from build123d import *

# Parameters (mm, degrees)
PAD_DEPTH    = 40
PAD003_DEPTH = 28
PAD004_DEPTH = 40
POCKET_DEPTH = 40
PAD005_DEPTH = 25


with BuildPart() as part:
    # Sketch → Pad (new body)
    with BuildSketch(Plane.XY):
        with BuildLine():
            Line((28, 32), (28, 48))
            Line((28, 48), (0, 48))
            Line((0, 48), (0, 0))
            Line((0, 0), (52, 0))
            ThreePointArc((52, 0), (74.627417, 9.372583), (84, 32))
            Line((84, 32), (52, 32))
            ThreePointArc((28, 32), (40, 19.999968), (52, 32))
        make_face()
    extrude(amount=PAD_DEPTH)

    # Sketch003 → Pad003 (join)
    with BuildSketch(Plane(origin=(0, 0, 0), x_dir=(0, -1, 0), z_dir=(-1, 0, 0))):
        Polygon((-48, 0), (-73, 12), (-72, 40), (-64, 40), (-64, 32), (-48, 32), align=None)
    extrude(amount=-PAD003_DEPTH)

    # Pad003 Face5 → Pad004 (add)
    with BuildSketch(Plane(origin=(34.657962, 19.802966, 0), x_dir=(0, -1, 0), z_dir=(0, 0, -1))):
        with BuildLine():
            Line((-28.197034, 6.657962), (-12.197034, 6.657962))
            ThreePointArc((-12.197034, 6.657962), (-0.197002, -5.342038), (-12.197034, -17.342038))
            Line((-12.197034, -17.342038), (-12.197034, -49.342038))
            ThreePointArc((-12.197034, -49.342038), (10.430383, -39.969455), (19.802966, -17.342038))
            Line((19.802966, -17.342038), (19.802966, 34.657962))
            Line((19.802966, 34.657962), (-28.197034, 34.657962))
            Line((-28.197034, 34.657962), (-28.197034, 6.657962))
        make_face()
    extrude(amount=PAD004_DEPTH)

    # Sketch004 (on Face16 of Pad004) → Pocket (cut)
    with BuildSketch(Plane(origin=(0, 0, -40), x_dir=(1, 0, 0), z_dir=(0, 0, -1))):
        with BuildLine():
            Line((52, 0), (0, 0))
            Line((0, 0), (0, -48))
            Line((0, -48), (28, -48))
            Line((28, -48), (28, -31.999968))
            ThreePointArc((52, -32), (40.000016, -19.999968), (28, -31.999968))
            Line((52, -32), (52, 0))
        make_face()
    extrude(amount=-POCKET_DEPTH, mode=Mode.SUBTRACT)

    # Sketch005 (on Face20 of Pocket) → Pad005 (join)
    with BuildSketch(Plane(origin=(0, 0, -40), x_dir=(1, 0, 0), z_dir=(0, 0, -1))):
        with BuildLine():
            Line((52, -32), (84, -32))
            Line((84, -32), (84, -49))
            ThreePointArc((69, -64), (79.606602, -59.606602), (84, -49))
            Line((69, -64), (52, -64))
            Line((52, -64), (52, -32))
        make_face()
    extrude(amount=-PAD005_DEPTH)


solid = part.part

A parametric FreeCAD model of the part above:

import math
import FreeCAD as App
import Part
import Sketcher

V = App.Vector
Q = App.Units.Quantity


def add_polygon(sketch, points):
    """Adds a closed chain of lines whose ends are joined by coincident constraints."""
    first, n = sketch.GeometryCount, len(points)
    for a, b in zip(points, points[1:] + points[:1]):
        sketch.addGeometry(Part.LineSegment(App.Vector(*a, 0), App.Vector(*b, 0)), False)
    for i in range(n):
        sketch.addConstraint(Sketcher.Constraint("Coincident", first + i, 2, first + (i + 1) % n, 1))

doc = App.newDocument("Part")
body = doc.addObject("PartDesign::Body", "Body")

# Sketch on XY plane
sketch1 = body.newObject("Sketcher::SketchObject", "Sketch")
sketch1.AttachmentSupport = (doc.getObject("XY_Plane"), [""])
sketch1.MapMode = "FlatFace"
sketch1.addGeometry(Part.LineSegment(V(28, 32, 0), V(28, 48, 0)), False)
sketch1.addGeometry(Part.LineSegment(V(28, 48, 0), V(0, 48, 0)), False)
sketch1.addGeometry(Part.LineSegment(V(0, 48, 0), V(0, 0, 0)), False)
sketch1.addGeometry(Part.LineSegment(V(0, 0, 0), V(52, 0, 0)), False)
sketch1.addGeometry(Part.ArcOfCircle(Part.Circle(V(52, 32, 0), V(0, 0, 1), 32), math.radians(-90), math.radians(0)), False)
sketch1.addGeometry(Part.LineSegment(V(84, 32, 0), V(52, 32, 0)), False)
sketch1.addGeometry(Part.ArcOfCircle(Part.Circle(V(40, 31.999968, 0), V(0, 0, 1), 12), math.radians(179.999847), math.radians(360.000153)), False)
sketch1.addConstraint(Sketcher.Constraint("Coincident", 0, 2, 1, 1))
sketch1.addConstraint(Sketcher.Constraint("Coincident", 1, 2, 2, 1))
sketch1.addConstraint(Sketcher.Constraint("Coincident", 2, 2, 3, 1))
sketch1.addConstraint(Sketcher.Constraint("Tangent", 3, 2, 4, 1))
sketch1.addConstraint(Sketcher.Constraint("Coincident", 4, 2, 5, 1))
sketch1.addConstraint(Sketcher.Constraint("Coincident", 5, 2, 6, 2))
sketch1.addConstraint(Sketcher.Constraint("Coincident", 6, 1, 0, 1))
sketch1.addConstraint(Sketcher.Constraint("Vertical", 0))
sketch1.addConstraint(Sketcher.Constraint("Horizontal", 1))
sketch1.addConstraint(Sketcher.Constraint("Vertical", 2))
sketch1.addConstraint(Sketcher.Constraint("Horizontal", 3))
sketch1.addConstraint(Sketcher.Constraint("Horizontal", 5))
sketch1.addConstraint(Sketcher.Constraint("Coincident", 2, 2, -1, 1))
sketch1.addConstraint(Sketcher.Constraint("Coincident", 5, 2, 4, 3))
sketch1.addConstraint(Sketcher.Constraint("Horizontal", 5, 2, 6, 1))
sketch1.addConstraint(Sketcher.Constraint("Radius", 4, Q("32 mm")))
sketch1.addConstraint(Sketcher.Constraint("Radius", 6, Q("12 mm")))
sketch1.addConstraint(Sketcher.Constraint("DistanceX", 1, 2, 1, 1, Q("28 mm")))
sketch1.addConstraint(Sketcher.Constraint("DistanceY", 0, 1, 0, 2, Q("16 mm")))
sketch1.addConstraint(Sketcher.Constraint("DistanceY", -1, 1, 6, 3, Q("31.999968 mm")))
pad1 = body.newObject("PartDesign::Pad", "Pad")
pad1.Profile = sketch1
pad1.Length = 40

# Sketch on YZ plane
sketch2 = body.newObject("Sketcher::SketchObject", "Sketch001")
sketch2.AttachmentSupport = (doc.getObject("YZ_Plane"), [""])
sketch2.MapMode = "FlatFace"
add_polygon(sketch2, [(73, 12), (48, 0), (48, 32), (64, 32), (64, 40), (72, 40)])  # lines 0-5
sketch2.addConstraint(Sketcher.Constraint("Vertical", 1))
sketch2.addConstraint(Sketcher.Constraint("Horizontal", 2))
sketch2.addConstraint(Sketcher.Constraint("Vertical", 3))
sketch2.addConstraint(Sketcher.Constraint("Horizontal", 4))
sketch2.addConstraint(Sketcher.Constraint("PointOnObject", 0, 2, -1))
sketch2.addConstraint(Sketcher.Constraint("Equal", 4, 3))
sketch2.addConstraint(Sketcher.Constraint("DistanceX", 2, 1, 2, 2, Q("16 mm")))
sketch2.addConstraint(Sketcher.Constraint("DistanceX", 4, 1, 4, 2, Q("8 mm")))
sketch2.addConstraint(Sketcher.Constraint("DistanceY", 1, 1, 1, 2, Q("32 mm")))
sketch2.addConstraint(Sketcher.Constraint("DistanceX", -1, 1, 0, 2, Q("48 mm")))
sketch2.addConstraint(Sketcher.Constraint("DistanceX", -1, 1, 5, 2, Q("73 mm")))
sketch2.addConstraint(Sketcher.Constraint("DistanceY", -1, 1, 5, 2, Q("12 mm")))
pad2 = body.newObject("PartDesign::Pad", "Pad001")
pad2.Profile = sketch2
pad2.Length = 28

# Sketch on XY plane
sketch3 = body.newObject("Sketcher::SketchObject", "Sketch002")
sketch3.AttachmentSupport = (doc.getObject("XY_Plane"), [""])
sketch3.MapMode = "FlatFace"
sketch3.addGeometry(Part.LineSegment(V(28, 48, 0), V(28, 32, 0)), False)
sketch3.addGeometry(Part.ArcOfCircle(Part.Circle(V(40, 31.999968, 0), V(0, 0, 1), 12), math.radians(179.999847), math.radians(360.000153)), False)
sketch3.addGeometry(Part.LineSegment(V(52, 32, 0), V(84, 32, 0)), False)
sketch3.addGeometry(Part.ArcOfCircle(Part.Circle(V(52, 32, 0), V(0, 0, 1), 32), math.radians(-90), math.radians(0)), False)
sketch3.addGeometry(Part.LineSegment(V(52, 0, 0), V(0, 0, 0)), False)
sketch3.addGeometry(Part.LineSegment(V(0, 0, 0), V(0, 48, 0)), False)
sketch3.addGeometry(Part.LineSegment(V(0, 48, 0), V(28, 48, 0)), False)
sketch3.addConstraint(Sketcher.Constraint("Coincident", 0, 2, 1, 1))
sketch3.addConstraint(Sketcher.Constraint("Coincident", 1, 2, 2, 1))
sketch3.addConstraint(Sketcher.Constraint("Coincident", 2, 2, 3, 2))
sketch3.addConstraint(Sketcher.Constraint("Tangent", 3, 1, 4, 1))
sketch3.addConstraint(Sketcher.Constraint("Coincident", 4, 2, 5, 1))
sketch3.addConstraint(Sketcher.Constraint("Coincident", 5, 2, 6, 1))
sketch3.addConstraint(Sketcher.Constraint("Coincident", 6, 2, 0, 1))
sketch3.addConstraint(Sketcher.Constraint("Vertical", 0))
sketch3.addConstraint(Sketcher.Constraint("Horizontal", 2))
sketch3.addConstraint(Sketcher.Constraint("Horizontal", 4))
sketch3.addConstraint(Sketcher.Constraint("Vertical", 5))
sketch3.addConstraint(Sketcher.Constraint("Horizontal", 6))
sketch3.addConstraint(Sketcher.Constraint("Coincident", 4, 2, -1, 1))
sketch3.addConstraint(Sketcher.Constraint("Coincident", 1, 2, 3, 3))
sketch3.addConstraint(Sketcher.Constraint("Horizontal", 3, 3, 0, 2))
sketch3.addConstraint(Sketcher.Constraint("Radius", 1, Q("12 mm")))
sketch3.addConstraint(Sketcher.Constraint("Radius", 3, Q("32 mm")))
sketch3.addConstraint(Sketcher.Constraint("DistanceX", 4, 2, 4, 1, Q("52 mm")))
sketch3.addConstraint(Sketcher.Constraint("DistanceY", 0, 2, 0, 1, Q("16 mm")))
sketch3.addConstraint(Sketcher.Constraint("DistanceY", -1, 1, 1, 3, Q("31.999968 mm")))
pad3 = body.newObject("PartDesign::Pad", "Pad002")
pad3.Profile = sketch3
pad3.Length = 40
pad3.Reversed = True

# Sketch on XY plane
sketch4 = body.newObject("Sketcher::SketchObject", "Sketch003")
sketch4.AttachmentSupport = (doc.getObject("XY_Plane"), [""])
sketch4.MapMode = "FlatFace"
sketch4.AttachmentOffset = App.Placement(V(0, 0, -40), App.Rotation())
sketch4.addGeometry(Part.LineSegment(V(52, 0, 0), V(0, 0, 0)), False)
sketch4.addGeometry(Part.LineSegment(V(0, 0, 0), V(0, 48, 0)), False)
sketch4.addGeometry(Part.LineSegment(V(0, 48, 0), V(28, 48, 0)), False)
sketch4.addGeometry(Part.LineSegment(V(28, 48, 0), V(28, 31.999968, 0)), False)
sketch4.addGeometry(Part.ArcOfCircle(Part.Circle(V(40, 31.999968, 0), V(0, 0, 1), 12), math.radians(180), math.radians(360.000153)), False)
sketch4.addGeometry(Part.LineSegment(V(52, 32, 0), V(52, 0, 0)), False)
sketch4.addConstraint(Sketcher.Constraint("Coincident", 0, 2, 1, 1))
sketch4.addConstraint(Sketcher.Constraint("Coincident", 1, 2, 2, 1))
sketch4.addConstraint(Sketcher.Constraint("Coincident", 2, 2, 3, 1))
sketch4.addConstraint(Sketcher.Constraint("Tangent", 3, 2, 4, 1))
sketch4.addConstraint(Sketcher.Constraint("Coincident", 4, 2, 5, 1))
sketch4.addConstraint(Sketcher.Constraint("Coincident", 5, 2, 0, 1))
sketch4.addConstraint(Sketcher.Constraint("Horizontal", 0))
sketch4.addConstraint(Sketcher.Constraint("Vertical", 1))
sketch4.addConstraint(Sketcher.Constraint("Horizontal", 2))
sketch4.addConstraint(Sketcher.Constraint("Vertical", 3))
sketch4.addConstraint(Sketcher.Constraint("Vertical", 5))
sketch4.addConstraint(Sketcher.Constraint("Coincident", 0, 2, -1, 1))
sketch4.addConstraint(Sketcher.Constraint("Radius", 4, Q("12 mm")))
sketch4.addConstraint(Sketcher.Constraint("DistanceX", 0, 2, 0, 1, Q("52 mm")))
sketch4.addConstraint(Sketcher.Constraint("DistanceY", 1, 1, 1, 2, Q("48 mm")))
sketch4.addConstraint(Sketcher.Constraint("DistanceY", 5, 2, 5, 1, Q("32 mm")))
sketch4.addConstraint(Sketcher.Constraint("DistanceY", 3, 2, 3, 1, Q("16.000032 mm")))
pocket1 = body.newObject("PartDesign::Pocket", "Pocket")
pocket1.Profile = sketch4
pocket1.Length = 40
pocket1.Reversed = True

# Sketch on XY plane
sketch5 = body.newObject("Sketcher::SketchObject", "Sketch004")
sketch5.AttachmentSupport = (doc.getObject("XY_Plane"), [""])
sketch5.MapMode = "FlatFace"
sketch5.AttachmentOffset = App.Placement(V(0, 0, -40), App.Rotation())
sketch5.addGeometry(Part.LineSegment(V(84, 32, 0), V(52, 32, 0)), False)
sketch5.addGeometry(Part.LineSegment(V(52, 32, 0), V(52, 64, 0)), False)
sketch5.addGeometry(Part.LineSegment(V(52, 64, 0), V(69, 64, 0)), False)
sketch5.addGeometry(Part.ArcOfCircle(Part.Circle(V(69.000001, 49.000001, 0), V(0, 0, 1), 14.999999), math.radians(-0.000004), math.radians(90.000004)), False)
sketch5.addGeometry(Part.LineSegment(V(84, 49, 0), V(84, 32, 0)), False)
sketch5.addConstraint(Sketcher.Constraint("Coincident", 0, 2, 1, 1))
sketch5.addConstraint(Sketcher.Constraint("Coincident", 1, 2, 2, 1))
sketch5.addConstraint(Sketcher.Constraint("Tangent", 2, 2, 3, 2))
sketch5.addConstraint(Sketcher.Constraint("Tangent", 3, 1, 4, 1))
sketch5.addConstraint(Sketcher.Constraint("Coincident", 4, 2, 0, 1))
sketch5.addConstraint(Sketcher.Constraint("Horizontal", 0))
sketch5.addConstraint(Sketcher.Constraint("Vertical", 1))
sketch5.addConstraint(Sketcher.Constraint("Horizontal", 2))
sketch5.addConstraint(Sketcher.Constraint("Vertical", 4))
sketch5.addConstraint(Sketcher.Constraint("Equal", 0, 1))
sketch5.addConstraint(Sketcher.Constraint("Radius", 3, Q("14.999999 mm")))
sketch5.addConstraint(Sketcher.Constraint("DistanceX", 0, 2, 0, 1, Q("32 mm")))
sketch5.addConstraint(Sketcher.Constraint("DistanceX", -1, 1, 3, 3, Q("69.000001 mm")))
sketch5.addConstraint(Sketcher.Constraint("DistanceY", -1, 1, 3, 3, Q("49.000001 mm")))
pad4 = body.newObject("PartDesign::Pad", "Pad003")
pad4.Profile = sketch5
pad4.Length = 25

doc.recompute()
